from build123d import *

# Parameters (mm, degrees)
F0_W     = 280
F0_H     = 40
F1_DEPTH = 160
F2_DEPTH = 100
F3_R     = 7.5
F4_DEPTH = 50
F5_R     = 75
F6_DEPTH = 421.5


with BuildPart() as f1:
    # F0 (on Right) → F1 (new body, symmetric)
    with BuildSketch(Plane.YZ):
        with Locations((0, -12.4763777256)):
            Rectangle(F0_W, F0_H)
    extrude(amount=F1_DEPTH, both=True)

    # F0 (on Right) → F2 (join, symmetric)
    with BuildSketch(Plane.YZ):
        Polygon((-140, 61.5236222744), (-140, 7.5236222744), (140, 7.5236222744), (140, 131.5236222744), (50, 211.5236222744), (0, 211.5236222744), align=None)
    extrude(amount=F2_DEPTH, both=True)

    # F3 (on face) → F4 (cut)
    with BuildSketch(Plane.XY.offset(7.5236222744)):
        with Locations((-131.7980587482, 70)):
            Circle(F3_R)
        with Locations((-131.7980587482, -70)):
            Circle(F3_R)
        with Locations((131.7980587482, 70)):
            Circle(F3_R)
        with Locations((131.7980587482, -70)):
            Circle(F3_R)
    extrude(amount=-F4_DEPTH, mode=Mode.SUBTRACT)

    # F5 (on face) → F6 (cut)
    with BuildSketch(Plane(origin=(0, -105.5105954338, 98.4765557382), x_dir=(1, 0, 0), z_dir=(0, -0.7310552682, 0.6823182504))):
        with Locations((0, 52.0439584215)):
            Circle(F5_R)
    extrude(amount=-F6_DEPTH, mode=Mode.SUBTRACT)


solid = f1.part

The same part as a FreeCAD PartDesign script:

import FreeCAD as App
import Part
import Sketcher
from FreeCAD import Vector


def add_polygon(sketch, points):
    """Adds a closed chain of lines whose ends are joined by coincident constraints."""
    first, n = sketch.GeometryCount, len(points)
    for a, b in zip(points, points[1:] + points[:1]):
        sketch.addGeometry(Part.LineSegment(App.Vector(*a, 0), App.Vector(*b, 0)), False)
    for i in range(n):
        sketch.addConstraint(Sketcher.Constraint("Coincident", first + i, 2, first + (i + 1) % n, 1))

doc = App.newDocument("Part")
body = doc.addObject("PartDesign::Body", "Body")

# Sketch on YZ plane
sketch1 = body.newObject("Sketcher::SketchObject", "Sketch")
sketch1.AttachmentSupport = (doc.getObject("YZ_Plane"), [""])
sketch1.MapMode = "FlatFace"
add_polygon(sketch1, [(-140, 8), (-140, -32), (140, -32), (140, 8)])  # lines 0-3
sketch1.addConstraint(Sketcher.Constraint("Vertical", 0))
sketch1.addConstraint(Sketcher.Constraint("Horizontal", 1))
sketch1.addConstraint(Sketcher.Constraint("Vertical", 2))
sketch1.addConstraint(Sketcher.Constraint("Horizontal", 3))
sketch1.addConstraint(Sketcher.Constraint("DistanceX", 1, 1, 1, 2, 280.0))
sketch1.addConstraint(Sketcher.Constraint("DistanceY", 0, 2, 0, 1, 40.0))
sketch1.addConstraint(Sketcher.Constraint("DistanceX", 0, 2, -1, 1, 140.0))
sketch1.addConstraint(Sketcher.Constraint("DistanceY", 0, 2, -1, 1, 32.476378))
pad1 = body.newObject("PartDesign::Pad", "Pad")
pad1.Profile = sketch1
pad1.Length = 320
pad1.Midplane = True

# Sketch on YZ plane
sketch2 = body.newObject("Sketcher::SketchObject", "Sketch001")
sketch2.AttachmentSupport = (doc.getObject("YZ_Plane"), [""])
sketch2.MapMode = "FlatFace"
add_polygon(sketch2, [(-140, 62), (-140, 8), (140, 8), (140, 132), (50, 212), (0, 212)])  # lines 0-5
sketch2.addConstraint(Sketcher.Constraint("Vertical", 0))
sketch2.addConstraint(Sketcher.Constraint("Horizontal", 1))
sketch2.addConstraint(Sketcher.Constraint("Vertical", 2))
sketch2.addConstraint(Sketcher.Constraint("Horizontal", 4))
sketch2.addConstraint(Sketcher.Constraint("PointOnObject", 4, 2, -2))
sketch2.addConstraint(Sketcher.Constraint("DistanceX", 1, 1, 1, 2, 280.0))
sketch2.addConstraint(Sketcher.Constraint("DistanceX", 4, 2, 4, 1, 50.0))
sketch2.addConstraint(Sketcher.Constraint("DistanceY", 0, 2, 0, 1, 54.0))
sketch2.addConstraint(Sketcher.Constraint("DistanceY", 2, 1, 2, 2, 124.0))
sketch2.addConstraint(Sketcher.Constraint("DistanceX", 0, 2, -1, 1, 140.0))
sketch2.addConstraint(Sketcher.Constraint("DistanceY", 2, 2, 3, 2, 80.0))
sketch2.addConstraint(Sketcher.Constraint("DistanceY", -1, 1, 0, 2, 7.523622))
pad2 = body.newObject("PartDesign::Pad", "Pad001")
pad2.Profile = sketch2
pad2.Length = 200
pad2.Midplane = True

# Sketch on XY plane
sketch3 = body.newObject("Sketcher::SketchObject", "Sketch002")
sketch3.AttachmentSupport = (doc.getObject("XY_Plane"), [""])
sketch3.MapMode = "FlatFace"
sketch3.AttachmentOffset = App.Placement(Vector(0, 0, 7.523622), App.Rotation())
sketch3.addGeometry(Part.Circle(Vector(-132, 70, 0), Vector(0, 0, 1), 8), False)
sketch3.addGeometry(Part.Circle(Vector(-132, -70, 0), Vector(0, 0, 1), 8), False)
sketch3.addGeometry(Part.Circle(Vector(132, 70, 0), Vector(0, 0, 1), 8), False)
sketch3.addGeometry(Part.Circle(Vector(132, -70, 0), Vector(0, 0, 1), 8), False)
sketch3.addConstraint(Sketcher.Constraint("Equal", 0, 1))
sketch3.addConstraint(Sketcher.Constraint("Equal", 1, 2))
sketch3.addConstraint(Sketcher.Constraint("Equal", 2, 3))
sketch3.addConstraint(Sketcher.Constraint("Symmetric", 1, 3, 2, 3, -1, 1))
sketch3.addConstraint(Sketcher.Constraint("Symmetric", 0, 3, 3, 3, -1, 1))
sketch3.addConstraint(Sketcher.Constraint("Symmetric", 0, 3, 2, 3, -2))
sketch3.addConstraint(Sketcher.Constraint("Diameter", 0, 15.0))
sketch3.addConstraint(Sketcher.Constraint("DistanceY", -1, 1, 0, 3, 70.0))
sketch3.addConstraint(Sketcher.Constraint("DistanceX", 0, 3, -1, 1, 131.798059))
pocket1 = body.newObject("PartDesign::Pocket", "Pocket")
pocket1.Profile = sketch3
pocket1.Length = 50

# Sketch on an angled plane
sketch4 = body.newObject("Sketcher::SketchObject", "Sketch003")
sketch4.Placement = App.Placement(Vector(0, -105.510595, 98.476556), App.Rotation(Vector(1, 0, 0), Vector(0, 0.68231825, 0.731055268), Vector(0, -0.731055268, 0.68231825), "ZXY"))
sketch4.addGeometry(Part.Circle(Vector(0, 52, 0), Vector(0, 0, 1), 75), False)
sketch4.addConstraint(Sketcher.Constraint("PointOnObject", 0, 3, -2))
sketch4.addConstraint(Sketcher.Constraint("Diameter", 0, 150.0))
sketch4.addConstraint(Sketcher.Constraint("DistanceY", -1, 1, 0, 3, 52.043958))
pocket2 = body.newObject("PartDesign::Pocket", "Pocket001")
pocket2.Profile = sketch4
pocket2.Length = 421.5

doc.recompute()
